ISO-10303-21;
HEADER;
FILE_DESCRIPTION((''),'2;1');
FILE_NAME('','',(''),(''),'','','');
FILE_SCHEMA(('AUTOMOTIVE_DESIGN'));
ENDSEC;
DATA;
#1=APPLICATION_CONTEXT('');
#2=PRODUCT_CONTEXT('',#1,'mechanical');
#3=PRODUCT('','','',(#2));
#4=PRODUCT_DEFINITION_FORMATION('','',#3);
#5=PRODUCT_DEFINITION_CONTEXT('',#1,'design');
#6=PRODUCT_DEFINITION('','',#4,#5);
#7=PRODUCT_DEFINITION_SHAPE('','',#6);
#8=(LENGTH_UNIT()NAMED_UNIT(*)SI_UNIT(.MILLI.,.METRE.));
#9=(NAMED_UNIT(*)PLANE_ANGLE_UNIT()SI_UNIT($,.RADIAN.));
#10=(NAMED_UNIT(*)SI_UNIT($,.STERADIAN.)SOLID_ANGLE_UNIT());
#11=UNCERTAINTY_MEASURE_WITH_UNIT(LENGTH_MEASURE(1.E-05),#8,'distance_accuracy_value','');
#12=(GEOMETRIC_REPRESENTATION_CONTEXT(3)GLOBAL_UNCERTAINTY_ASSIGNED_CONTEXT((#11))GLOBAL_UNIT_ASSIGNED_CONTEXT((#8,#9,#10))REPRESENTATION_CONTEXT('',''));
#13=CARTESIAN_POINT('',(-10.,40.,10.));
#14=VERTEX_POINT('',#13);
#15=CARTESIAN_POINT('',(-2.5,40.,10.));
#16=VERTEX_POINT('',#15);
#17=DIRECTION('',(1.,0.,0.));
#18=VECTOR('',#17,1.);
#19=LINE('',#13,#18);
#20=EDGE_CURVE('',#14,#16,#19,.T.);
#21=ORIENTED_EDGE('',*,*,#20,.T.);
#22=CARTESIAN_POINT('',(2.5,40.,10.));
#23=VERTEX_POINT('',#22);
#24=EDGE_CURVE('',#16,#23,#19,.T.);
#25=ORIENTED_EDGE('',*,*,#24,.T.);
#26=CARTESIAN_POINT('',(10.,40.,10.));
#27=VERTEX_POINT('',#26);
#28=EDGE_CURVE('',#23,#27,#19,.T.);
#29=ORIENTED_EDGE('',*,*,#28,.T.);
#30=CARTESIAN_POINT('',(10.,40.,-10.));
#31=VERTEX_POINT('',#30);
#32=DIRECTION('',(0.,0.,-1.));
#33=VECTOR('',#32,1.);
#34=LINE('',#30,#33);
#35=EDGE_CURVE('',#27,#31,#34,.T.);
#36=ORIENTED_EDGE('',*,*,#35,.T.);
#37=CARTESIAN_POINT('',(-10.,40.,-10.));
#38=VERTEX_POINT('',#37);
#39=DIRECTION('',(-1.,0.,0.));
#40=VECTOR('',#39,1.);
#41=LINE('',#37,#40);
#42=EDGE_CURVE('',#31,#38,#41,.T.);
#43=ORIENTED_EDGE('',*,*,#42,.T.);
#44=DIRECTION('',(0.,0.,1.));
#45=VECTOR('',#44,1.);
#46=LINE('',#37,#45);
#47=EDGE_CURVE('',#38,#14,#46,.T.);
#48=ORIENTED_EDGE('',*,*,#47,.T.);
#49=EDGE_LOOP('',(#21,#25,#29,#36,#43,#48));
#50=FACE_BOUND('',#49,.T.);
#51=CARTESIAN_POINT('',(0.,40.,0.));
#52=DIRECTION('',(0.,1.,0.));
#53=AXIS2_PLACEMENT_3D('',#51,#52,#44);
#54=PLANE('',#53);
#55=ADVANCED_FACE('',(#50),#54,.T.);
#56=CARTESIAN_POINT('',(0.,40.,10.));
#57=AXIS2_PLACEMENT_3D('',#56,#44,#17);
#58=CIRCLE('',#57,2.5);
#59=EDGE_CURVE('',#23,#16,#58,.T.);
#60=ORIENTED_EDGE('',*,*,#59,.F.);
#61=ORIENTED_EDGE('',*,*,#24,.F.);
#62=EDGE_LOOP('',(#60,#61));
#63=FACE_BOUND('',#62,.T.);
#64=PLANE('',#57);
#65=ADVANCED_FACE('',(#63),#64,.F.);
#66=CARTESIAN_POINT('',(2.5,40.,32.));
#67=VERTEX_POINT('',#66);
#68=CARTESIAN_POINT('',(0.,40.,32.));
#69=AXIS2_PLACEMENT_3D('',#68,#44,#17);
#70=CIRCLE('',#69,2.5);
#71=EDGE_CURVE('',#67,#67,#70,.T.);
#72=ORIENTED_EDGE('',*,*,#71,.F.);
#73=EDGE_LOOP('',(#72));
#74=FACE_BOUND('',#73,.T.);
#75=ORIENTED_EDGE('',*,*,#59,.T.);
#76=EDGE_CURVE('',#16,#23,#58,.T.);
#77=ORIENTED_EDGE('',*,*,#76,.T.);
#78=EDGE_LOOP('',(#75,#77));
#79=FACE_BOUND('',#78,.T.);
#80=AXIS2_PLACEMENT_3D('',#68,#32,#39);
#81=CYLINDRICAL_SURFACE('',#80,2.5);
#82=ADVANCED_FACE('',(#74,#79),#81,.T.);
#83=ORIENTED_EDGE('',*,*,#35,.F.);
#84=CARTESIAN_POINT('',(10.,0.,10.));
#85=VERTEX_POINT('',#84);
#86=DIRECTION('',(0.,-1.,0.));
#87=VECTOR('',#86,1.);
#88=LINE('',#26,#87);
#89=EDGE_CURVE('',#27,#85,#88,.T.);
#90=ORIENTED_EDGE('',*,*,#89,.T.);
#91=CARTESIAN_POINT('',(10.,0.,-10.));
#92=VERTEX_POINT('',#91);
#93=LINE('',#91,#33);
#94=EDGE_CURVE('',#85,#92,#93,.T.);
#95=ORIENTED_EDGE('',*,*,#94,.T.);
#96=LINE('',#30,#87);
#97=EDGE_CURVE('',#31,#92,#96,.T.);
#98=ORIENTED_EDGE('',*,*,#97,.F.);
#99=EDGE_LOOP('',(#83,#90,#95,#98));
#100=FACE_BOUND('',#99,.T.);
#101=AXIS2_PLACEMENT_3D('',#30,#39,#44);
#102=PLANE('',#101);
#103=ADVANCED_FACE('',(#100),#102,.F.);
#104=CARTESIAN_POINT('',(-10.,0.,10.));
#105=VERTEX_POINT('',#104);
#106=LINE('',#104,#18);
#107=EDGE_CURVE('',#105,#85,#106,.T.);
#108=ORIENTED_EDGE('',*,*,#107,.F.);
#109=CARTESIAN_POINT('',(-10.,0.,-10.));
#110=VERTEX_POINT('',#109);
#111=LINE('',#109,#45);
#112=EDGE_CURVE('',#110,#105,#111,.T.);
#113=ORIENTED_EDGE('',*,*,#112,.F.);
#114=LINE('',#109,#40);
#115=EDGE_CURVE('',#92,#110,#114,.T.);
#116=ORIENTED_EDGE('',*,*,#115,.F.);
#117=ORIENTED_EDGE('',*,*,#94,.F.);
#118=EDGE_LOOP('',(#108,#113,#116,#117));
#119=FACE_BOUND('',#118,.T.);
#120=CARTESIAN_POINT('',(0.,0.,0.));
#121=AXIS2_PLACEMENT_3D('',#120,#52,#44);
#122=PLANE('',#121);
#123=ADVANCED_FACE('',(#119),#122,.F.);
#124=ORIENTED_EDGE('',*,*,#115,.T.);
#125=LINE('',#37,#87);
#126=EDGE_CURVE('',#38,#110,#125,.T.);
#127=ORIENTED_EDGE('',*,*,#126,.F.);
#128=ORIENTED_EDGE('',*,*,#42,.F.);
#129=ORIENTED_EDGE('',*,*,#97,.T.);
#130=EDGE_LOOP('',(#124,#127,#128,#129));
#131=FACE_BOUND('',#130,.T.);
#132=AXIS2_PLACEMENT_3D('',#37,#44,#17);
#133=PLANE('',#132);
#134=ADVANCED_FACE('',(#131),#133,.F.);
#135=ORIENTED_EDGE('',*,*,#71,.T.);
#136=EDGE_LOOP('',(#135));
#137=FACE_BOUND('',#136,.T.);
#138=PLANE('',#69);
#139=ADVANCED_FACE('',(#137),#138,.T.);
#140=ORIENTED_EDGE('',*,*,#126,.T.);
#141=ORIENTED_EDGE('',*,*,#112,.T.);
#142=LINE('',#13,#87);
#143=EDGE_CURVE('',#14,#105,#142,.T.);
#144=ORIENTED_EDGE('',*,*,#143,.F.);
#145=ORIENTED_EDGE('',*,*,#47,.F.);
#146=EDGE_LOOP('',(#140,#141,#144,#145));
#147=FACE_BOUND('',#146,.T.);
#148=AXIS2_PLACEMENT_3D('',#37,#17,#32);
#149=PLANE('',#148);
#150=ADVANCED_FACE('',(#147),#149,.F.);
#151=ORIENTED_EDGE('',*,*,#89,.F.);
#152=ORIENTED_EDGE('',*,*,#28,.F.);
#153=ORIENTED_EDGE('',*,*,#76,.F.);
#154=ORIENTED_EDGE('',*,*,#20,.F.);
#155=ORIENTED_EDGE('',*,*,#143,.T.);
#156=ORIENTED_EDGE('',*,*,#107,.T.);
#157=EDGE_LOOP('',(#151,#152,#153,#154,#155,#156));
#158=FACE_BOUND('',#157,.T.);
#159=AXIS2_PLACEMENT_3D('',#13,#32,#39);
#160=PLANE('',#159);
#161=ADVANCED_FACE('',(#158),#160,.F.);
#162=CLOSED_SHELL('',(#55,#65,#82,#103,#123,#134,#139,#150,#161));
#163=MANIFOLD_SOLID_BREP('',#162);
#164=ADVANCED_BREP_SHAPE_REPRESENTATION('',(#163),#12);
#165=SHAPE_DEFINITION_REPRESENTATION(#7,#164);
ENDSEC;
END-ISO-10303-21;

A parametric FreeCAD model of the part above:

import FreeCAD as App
import Part
import Sketcher
Q = App.Units.Quantity


def add_polygon(sketch, points):
    """Adds a closed chain of lines whose ends are joined by coincident constraints."""
    first, n = sketch.GeometryCount, len(points)
    for a, b in zip(points, points[1:] + points[:1]):
        sketch.addGeometry(Part.LineSegment(App.Vector(*a, 0), App.Vector(*b, 0)), False)
    for i in range(n):
        sketch.addConstraint(Sketcher.Constraint("Coincident", first + i, 2, first + (i + 1) % n, 1))

doc = App.newDocument("Part")
body = doc.addObject("PartDesign::Body", "Body")

sketch1 = body.newObject("Sketcher::SketchObject", "Sketch")
sketch1.AttachmentSupport = (doc.getObject("XZ_Plane"), [""])
sketch1.MapMode = "FlatFace"
add_polygon(sketch1, [(-10, -10), (-10, 10), (10, 10), (10, -10)])
sketch1.addConstraint(Sketcher.Constraint("Vertical", 0))
sketch1.addConstraint(Sketcher.Constraint("Horizontal", 1))
sketch1.addConstraint(Sketcher.Constraint("Vertical", 2))
sketch1.addConstraint(Sketcher.Constraint("Horizontal", 3))
sketch1.addConstraint(Sketcher.Constraint("Symmetric", 0, 2, 2, 2, -1, 1))
sketch1.addConstraint(Sketcher.Constraint("Equal", 3, 0))
sketch1.addConstraint(Sketcher.Constraint("DistanceX", 1, 1, 1, 2, Q("20 mm")))
pad1 = body.newObject("PartDesign::Pad", "Pad")
pad1.Profile = sketch1
pad1.Length = 40
pad1.Reversed = True

sketch2 = body.newObject("Sketcher::SketchObject", "Sketch001")
sketch2.AttachmentSupport = (doc.getObject("XY_Plane"), [""])
sketch2.MapMode = "FlatFace"
sketch2.AttachmentOffset = App.Placement(App.Vector(0, 0, 10), App.Rotation())
sketch2.addGeometry(Part.Circle(App.Vector(0, 40, 0), App.Vector(0, 0, 1), 2.5), False)
sketch2.addConstraint(Sketcher.Constraint("PointOnObject", 0, 3, -2))
sketch2.addConstraint(Sketcher.Constraint("Diameter", 0, Q("5 mm")))
sketch2.addConstraint(Sketcher.Constraint("DistanceY", -1, 1, 0, 3, Q("40 mm")))
pad2 = body.newObject("PartDesign::Pad", "Pad001")
pad2.Profile = sketch2
pad2.Length = 22

doc.recompute()
